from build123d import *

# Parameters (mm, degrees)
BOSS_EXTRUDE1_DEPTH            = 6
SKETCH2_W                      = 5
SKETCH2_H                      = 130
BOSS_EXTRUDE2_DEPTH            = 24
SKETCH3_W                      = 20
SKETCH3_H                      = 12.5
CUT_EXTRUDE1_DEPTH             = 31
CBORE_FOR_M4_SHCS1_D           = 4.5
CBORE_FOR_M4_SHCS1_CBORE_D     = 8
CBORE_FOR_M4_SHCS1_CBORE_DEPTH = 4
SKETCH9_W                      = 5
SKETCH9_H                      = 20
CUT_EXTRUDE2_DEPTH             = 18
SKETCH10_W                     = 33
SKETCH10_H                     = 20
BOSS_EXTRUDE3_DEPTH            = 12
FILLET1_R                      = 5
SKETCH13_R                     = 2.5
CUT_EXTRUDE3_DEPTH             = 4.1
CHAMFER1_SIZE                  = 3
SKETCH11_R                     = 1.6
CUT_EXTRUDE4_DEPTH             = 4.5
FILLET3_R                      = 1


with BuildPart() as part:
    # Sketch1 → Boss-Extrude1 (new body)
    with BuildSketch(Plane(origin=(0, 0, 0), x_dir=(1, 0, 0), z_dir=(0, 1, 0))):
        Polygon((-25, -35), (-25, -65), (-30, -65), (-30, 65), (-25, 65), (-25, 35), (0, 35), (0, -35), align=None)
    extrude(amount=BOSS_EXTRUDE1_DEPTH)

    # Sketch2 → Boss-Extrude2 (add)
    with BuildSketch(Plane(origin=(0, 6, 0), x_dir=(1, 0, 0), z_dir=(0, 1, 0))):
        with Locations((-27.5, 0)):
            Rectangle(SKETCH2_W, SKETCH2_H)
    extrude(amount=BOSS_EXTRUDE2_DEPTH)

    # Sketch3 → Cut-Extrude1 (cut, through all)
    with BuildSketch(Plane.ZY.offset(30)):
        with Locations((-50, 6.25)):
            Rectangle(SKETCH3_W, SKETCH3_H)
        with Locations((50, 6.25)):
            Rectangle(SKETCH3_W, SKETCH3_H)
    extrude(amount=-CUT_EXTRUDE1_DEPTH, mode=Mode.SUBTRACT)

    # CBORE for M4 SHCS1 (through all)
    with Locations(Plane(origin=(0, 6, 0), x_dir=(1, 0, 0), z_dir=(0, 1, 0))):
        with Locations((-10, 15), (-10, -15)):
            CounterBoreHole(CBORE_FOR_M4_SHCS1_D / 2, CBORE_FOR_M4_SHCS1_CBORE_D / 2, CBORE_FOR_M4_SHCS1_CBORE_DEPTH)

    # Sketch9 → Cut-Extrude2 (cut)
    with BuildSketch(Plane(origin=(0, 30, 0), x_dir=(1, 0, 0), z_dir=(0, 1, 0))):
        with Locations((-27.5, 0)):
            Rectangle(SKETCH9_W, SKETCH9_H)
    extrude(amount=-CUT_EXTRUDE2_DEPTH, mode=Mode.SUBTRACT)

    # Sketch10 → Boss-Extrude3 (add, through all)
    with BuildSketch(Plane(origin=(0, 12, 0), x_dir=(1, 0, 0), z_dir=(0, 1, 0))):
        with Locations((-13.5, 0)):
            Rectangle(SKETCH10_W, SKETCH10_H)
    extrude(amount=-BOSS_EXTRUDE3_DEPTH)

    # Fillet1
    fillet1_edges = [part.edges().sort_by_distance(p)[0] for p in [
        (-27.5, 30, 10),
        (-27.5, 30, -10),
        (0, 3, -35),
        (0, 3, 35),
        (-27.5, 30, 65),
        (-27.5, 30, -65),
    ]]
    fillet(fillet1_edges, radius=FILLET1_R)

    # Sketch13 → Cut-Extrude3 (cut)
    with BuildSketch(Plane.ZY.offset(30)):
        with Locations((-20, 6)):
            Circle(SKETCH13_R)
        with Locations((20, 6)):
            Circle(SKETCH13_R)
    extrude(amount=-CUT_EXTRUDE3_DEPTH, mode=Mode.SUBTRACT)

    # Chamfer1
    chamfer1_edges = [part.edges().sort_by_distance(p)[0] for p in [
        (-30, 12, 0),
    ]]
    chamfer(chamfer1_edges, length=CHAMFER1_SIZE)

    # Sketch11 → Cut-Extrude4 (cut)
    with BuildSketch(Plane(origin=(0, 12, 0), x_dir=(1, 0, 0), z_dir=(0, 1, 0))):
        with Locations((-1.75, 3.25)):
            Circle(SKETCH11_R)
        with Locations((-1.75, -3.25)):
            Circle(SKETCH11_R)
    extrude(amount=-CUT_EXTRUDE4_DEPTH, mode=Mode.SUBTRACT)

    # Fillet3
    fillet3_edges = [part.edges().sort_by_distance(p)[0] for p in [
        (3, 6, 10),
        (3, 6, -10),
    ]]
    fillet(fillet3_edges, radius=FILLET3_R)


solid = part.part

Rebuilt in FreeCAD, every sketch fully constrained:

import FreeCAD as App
import Part
import Sketcher
from FreeCAD import Vector


def edges_at(feature, points):
    """Names of the edges that pass closest to the given points."""
    edges = feature.Shape.Edges
    near = lambda p: min(range(len(edges)), key=lambda i: edges[i].distToShape(Part.Vertex(*p))[0])
    return sorted({f"Edge{near(p) + 1}" for p in points})

doc = App.newDocument("Part")
params = doc.addObject("Spreadsheet::Sheet", "Params")
for row, (alias, value) in enumerate([
    ("sketch1_width", "25 mm"),
    ("sketch1_width2", "5 mm"),
    ("sketch1_height", "30 mm"),
    ("sketch1_height2", "70 mm"),
    ("pad1_length", "6 mm"),
    ("sketch2_width", "5 mm"),
    ("sketch2_height", "130 mm"),
    ("pad2_length", "24 mm"),
    ("sketch3_height", "20 mm"),
    ("sketch3_width", "12.5 mm"),
    ("sketch4_diameter", "4.5 mm"),
    ("hole_diameter", "4.5 mm"),
    ("hole_cbore_diameter", "8 mm"),
    ("hole_cbore_depth", "4 mm"),
    ("sketch5_width", "5 mm"),
    ("sketch5_height", "20 mm"),
    ("pocket2_length", "18 mm"),
    ("sketch6_width", "33 mm"),
    ("sketch6_height", "20 mm"),
    ("fillet_radius", "5 mm"),
    ("sketch7_diameter", "5 mm"),
    ("pocket3_length", "4.1 mm"),
    ("chamfer_size", "3 mm"),
    ("sketch8_diameter", "3.2 mm"),
    ("pocket4_length", "4.5 mm"),
    ("fillet2_radius", "1 mm"),
], start=1):
    params.set(f"A{row}", alias)
    params.set(f"B{row}", "=" + value)
    params.setAlias(f"B{row}", alias)

body = doc.addObject("PartDesign::Body", "Body")

sketch1 = body.newObject("Sketcher::SketchObject", "Sketch")
sketch1.AttachmentSupport = (doc.getObject("XZ_Plane"), [""])
sketch1.MapMode = "FlatFace"
sketch1.addGeometry([
    Part.LineSegment(Vector(-25, 65, 0), Vector(-25, 35, 0)),
    Part.LineSegment(Vector(-25, 35, 0), Vector(0, 35, 0)),
    Part.LineSegment(Vector(0, 35, 0), Vector(0, -35, 0)),
    Part.LineSegment(Vector(0, -35, 0), Vector(-25, -35, 0)),
    Part.LineSegment(Vector(-25, -35, 0), Vector(-25, -65, 0)),
    Part.LineSegment(Vector(-25, -65, 0), Vector(-30, -65, 0)),
    Part.LineSegment(Vector(-30, -65, 0), Vector(-30, 65, 0)),
    Part.LineSegment(Vector(-30, 65, 0), Vector(-25, 65, 0)),
], False)
sketch1.addConstraint([
    Sketcher.Constraint("Coincident", 0, 2, 1, 1),
    Sketcher.Constraint("Coincident", 1, 2, 2, 1),
    Sketcher.Constraint("Coincident", 2, 2, 3, 1),
    Sketcher.Constraint("Coincident", 3, 2, 4, 1),
    Sketcher.Constraint("Coincident", 4, 2, 5, 1),
    Sketcher.Constraint("Coincident", 5, 2, 6, 1),
    Sketcher.Constraint("Coincident", 6, 2, 7, 1),
    Sketcher.Constraint("Coincident", 7, 2, 0, 1),
    Sketcher.Constraint("Vertical", 0),
    Sketcher.Constraint("Horizontal", 1),
    Sketcher.Constraint("Vertical", 2),
    Sketcher.Constraint("Horizontal", 3),
    Sketcher.Constraint("Vertical", 4),
    Sketcher.Constraint("Horizontal", 5),
    Sketcher.Constraint("Vertical", 6),
    Sketcher.Constraint("Horizontal", 7),
    Sketcher.Constraint("Symmetric", 1, 2, 2, 2, -1, 1),
    Sketcher.Constraint("Symmetric", 4, 2, 7, 2, -1),
    Sketcher.Constraint("DistanceX", 1, 1, 1, 2, 25.0),
    Sketcher.Constraint("DistanceX", 5, 2, 5, 1, 5.0),
    Sketcher.Constraint("DistanceY", 0, 2, 0, 1, 30.0),
    Sketcher.Constraint("DistanceY", 2, 2, 2, 1, 70.0),
])
sketch1.setExpression("Constraints[18]", "Params.sketch1_width")
sketch1.setExpression("Constraints[19]", "Params.sketch1_width2")
sketch1.setExpression("Constraints[20]", "Params.sketch1_height")
sketch1.setExpression("Constraints[21]", "Params.sketch1_height2")
pad1 = body.newObject("PartDesign::Pad", "Pad")
pad1.Profile = sketch1
pad1.setExpression("Length", "Params.pad1_length")
pad1.Reversed = True

sketch2 = body.newObject("Sketcher::SketchObject", "Sketch001")
sketch2.AttachmentSupport = (doc.getObject("XZ_Plane"), [""])
sketch2.MapMode = "FlatFace"
sketch2.AttachmentOffset = App.Placement(Vector(0, 0, -6), App.Rotation())
sketch2.addGeometry([
    Part.LineSegment(Vector(-30, -65, 0), Vector(-30, 65, 0)),
    Part.LineSegment(Vector(-30, 65, 0), Vector(-25, 65, 0)),
    Part.LineSegment(Vector(-25, 65, 0), Vector(-25, -65, 0)),
    Part.LineSegment(Vector(-25, -65, 0), Vector(-30, -65, 0)),
], False)
sketch2.addConstraint([
    Sketcher.Constraint("Coincident", 0, 2, 1, 1),
    Sketcher.Constraint("Coincident", 1, 2, 2, 1),
    Sketcher.Constraint("Coincident", 2, 2, 3, 1),
    Sketcher.Constraint("Coincident", 3, 2, 0, 1),
    Sketcher.Constraint("Vertical", 0),
    Sketcher.Constraint("Horizontal", 1),
    Sketcher.Constraint("Vertical", 2),
    Sketcher.Constraint("Horizontal", 3),
    Sketcher.Constraint("DistanceX", 1, 1, 1, 2, 5.0),
    Sketcher.Constraint("DistanceY", 0, 1, 0, 2, 130.0),
    Sketcher.Constraint("DistanceX", 0, 2, -1, 1, 30.0),
    Sketcher.Constraint("DistanceY", -1, 1, 0, 2, 65.0),
])
sketch2.setExpression("Constraints[8]", "Params.sketch2_width")
sketch2.setExpression("Constraints[9]", "Params.sketch2_height")
pad2 = body.newObject("PartDesign::Pad", "Pad001")
pad2.Profile = sketch2
pad2.setExpression("Length", "Params.pad2_length")
pad2.Reversed = True

sketch3 = body.newObject("Sketcher::SketchObject", "Sketch002")
sketch3.AttachmentSupport = (doc.getObject("YZ_Plane"), [""])
sketch3.MapMode = "FlatFace"
sketch3.AttachmentOffset = App.Placement(Vector(0, 0, -30), App.Rotation())
sketch3.addGeometry([
    Part.LineSegment(Vector(12.5, -60, 0), Vector(0, -60, 0)),
    Part.LineSegment(Vector(0, -60, 0), Vector(0, -40, 0)),
    Part.LineSegment(Vector(0, -40, 0), Vector(12.5, -40, 0)),
    Part.LineSegment(Vector(12.5, -40, 0), Vector(12.5, -60, 0)),
    Part.LineSegment(Vector(12.5, 40, 0), Vector(0, 40, 0)),
    Part.LineSegment(Vector(0, 40, 0), Vector(0, 60, 0)),
    Part.LineSegment(Vector(0, 60, 0), Vector(12.5, 60, 0)),
    Part.LineSegment(Vector(12.5, 60, 0), Vector(12.5, 40, 0)),
], False)
sketch3.addConstraint([
    Sketcher.Constraint("Coincident", 0, 2, 1, 1),
    Sketcher.Constraint("Coincident", 1, 2, 2, 1),
    Sketcher.Constraint("Coincident", 2, 2, 3, 1),
    Sketcher.Constraint("Coincident", 3, 2, 0, 1),
    Sketcher.Constraint("Coincident", 4, 2, 5, 1),
    Sketcher.Constraint("Coincident", 5, 2, 6, 1),
    Sketcher.Constraint("Coincident", 6, 2, 7, 1),
    Sketcher.Constraint("Coincident", 7, 2, 4, 1),
    Sketcher.Constraint("Horizontal", 0),
    Sketcher.Constraint("Vertical", 1),
    Sketcher.Constraint("Horizontal", 2),
    Sketcher.Constraint("Vertical", 3),
    Sketcher.Constraint("Horizontal", 4),
    Sketcher.Constraint("Vertical", 5),
    Sketcher.Constraint("Horizontal", 6),
    Sketcher.Constraint("Vertical", 7),
    Sketcher.Constraint("Symmetric", 1, 2, 4, 2, -1, 1),
    Sketcher.Constraint("Symmetric", 0, 2, 5, 2, -1),
    Sketcher.Constraint("Vertical", 3, 2, 6, 2),
    Sketcher.Constraint("DistanceY", 1, 1, 1, 2, 20.0),
    Sketcher.Constraint("DistanceX", 0, 2, 0, 1, 12.5),
    Sketcher.Constraint("DistanceY", 0, 2, -1, 1, 60.0),
])
sketch3.setExpression("Constraints[19]", "Params.sketch3_height")
sketch3.setExpression("Constraints[20]", "Params.sketch3_width")
pocket1 = body.newObject("PartDesign::Pocket", "Pocket")
pocket1.Profile = sketch3
pocket1.Type = "ThroughAll"
pocket1.Reversed = True

sketch4 = body.newObject("Sketcher::SketchObject", "Sketch003")
sketch4.AttachmentSupport = (doc.getObject("XZ_Plane"), [""])
sketch4.MapMode = "FlatFace"
sketch4.AttachmentOffset = App.Placement(Vector(0, 0, -6), App.Rotation())
sketch4.addGeometry([
    Part.Circle(Vector(-10, -15, 0), Vector(0, 0, 1), 2.25),
    Part.Circle(Vector(-10, 15, 0), Vector(0, 0, 1), 2.25),
], False)
sketch4.addConstraint([
    Sketcher.Constraint("Equal", 0, 1),
    Sketcher.Constraint("Symmetric", 0, 3, 1, 3, -1),
    Sketcher.Constraint("Diameter", 0, 4.5),
    Sketcher.Constraint("DistanceX", 0, 3, -1, 1, 10.0),
    Sketcher.Constraint("DistanceY", 0, 3, -1, 1, 15.0),
])
sketch4.setExpression("Constraints[2]", "Params.sketch4_diameter")
doc.recompute()
hole = body.newObject("PartDesign::Hole", "Hole")
hole.Profile = sketch4
hole.ThreadType = "None"
hole.setExpression("Diameter", "Params.hole_diameter")
hole.DepthType = "ThroughAll"
hole.HoleCutType = "Counterbore"
hole.setExpression("HoleCutDiameter", "Params.hole_cbore_diameter")
hole.setExpression("HoleCutDepth", "Params.hole_cbore_depth")
hole.Reversed = True

sketch5 = body.newObject("Sketcher::SketchObject", "Sketch004")
sketch5.AttachmentSupport = (doc.getObject("XZ_Plane"), [""])
sketch5.MapMode = "FlatFace"
sketch5.AttachmentOffset = App.Placement(Vector(0, 0, -30), App.Rotation())
sketch5.addGeometry([
    Part.LineSegment(Vector(-30, -10, 0), Vector(-30, 10, 0)),
    Part.LineSegment(Vector(-30, 10, 0), Vector(-25, 10, 0)),
    Part.LineSegment(Vector(-25, 10, 0), Vector(-25, -10, 0)),
    Part.LineSegment(Vector(-25, -10, 0), Vector(-30, -10, 0)),
], False)
sketch5.addConstraint([
    Sketcher.Constraint("Coincident", 0, 2, 1, 1),
    Sketcher.Constraint("Coincident", 1, 2, 2, 1),
    Sketcher.Constraint("Coincident", 2, 2, 3, 1),
    Sketcher.Constraint("Coincident", 3, 2, 0, 1),
    Sketcher.Constraint("Vertical", 0),
    Sketcher.Constraint("Horizontal", 1),
    Sketcher.Constraint("Vertical", 2),
    Sketcher.Constraint("Horizontal", 3),
    Sketcher.Constraint("DistanceX", 1, 1, 1, 2, 5.0),
    Sketcher.Constraint("DistanceY", 0, 1, 0, 2, 20.0),
    Sketcher.Constraint("DistanceX", 0, 2, -1, 1, 30.0),
    Sketcher.Constraint("DistanceY", -1, 1, 0, 2, 10.0),
])
sketch5.setExpression("Constraints[8]", "Params.sketch5_width")
sketch5.setExpression("Constraints[9]", "Params.sketch5_height")
pocket2 = body.newObject("PartDesign::Pocket", "Pocket001")
pocket2.Profile = sketch5
pocket2.setExpression("Length", "Params.pocket2_length")
pocket2.Reversed = True

sketch6 = body.newObject("Sketcher::SketchObject", "Sketch005")
sketch6.AttachmentSupport = (doc.getObject("XZ_Plane"), [""])
sketch6.MapMode = "FlatFace"
sketch6.AttachmentOffset = App.Placement(Vector(0, 0, -12), App.Rotation())
sketch6.addGeometry([
    Part.LineSegment(Vector(-30, -10, 0), Vector(-30, 10, 0)),
    Part.LineSegment(Vector(-30, 10, 0), Vector(3, 10, 0)),
    Part.LineSegment(Vector(3, 10, 0), Vector(3, -10, 0)),
    Part.LineSegment(Vector(3, -10, 0), Vector(-30, -10, 0)),
], False)
sketch6.addConstraint([
    Sketcher.Constraint("Coincident", 0, 2, 1, 1),
    Sketcher.Constraint("Coincident", 1, 2, 2, 1),
    Sketcher.Constraint("Coincident", 2, 2, 3, 1),
    Sketcher.Constraint("Coincident", 3, 2, 0, 1),
    Sketcher.Constraint("Vertical", 0),
    Sketcher.Constraint("Horizontal", 1),
    Sketcher.Constraint("Vertical", 2),
    Sketcher.Constraint("Horizontal", 3),
    Sketcher.Constraint("DistanceX", 1, 1, 1, 2, 33.0),
    Sketcher.Constraint("DistanceY", 0, 1, 0, 2, 20.0),
    Sketcher.Constraint("DistanceX", 0, 2, -1, 1, 30.0),
    Sketcher.Constraint("DistanceY", -1, 1, 0, 2, 10.0),
])
sketch6.setExpression("Constraints[8]", "Params.sketch6_width")
sketch6.setExpression("Constraints[9]", "Params.sketch6_height")
pad3 = body.newObject("PartDesign::Pad", "Pad002")
pad3.Profile = sketch6
pad3.Type = "UpToLast"
doc.recompute()

fillet = body.newObject("PartDesign::Fillet", "Fillet")
fillet.Base = (pad3, edges_at(pad3, [
    (-27.5, 30, 10),
    (-27.5, 30, -10),
    (0, 3, -35),
    (0, 3, 35),
    (-27.5, 30, 65),
    (-27.5, 30, -65),
]))
fillet.setExpression("Radius", "Params.fillet_radius")

sketch7 = body.newObject("Sketcher::SketchObject", "Sketch006")
sketch7.AttachmentSupport = (doc.getObject("YZ_Plane"), [""])
sketch7.MapMode = "FlatFace"
sketch7.AttachmentOffset = App.Placement(Vector(0, 0, -30), App.Rotation())
sketch7.addGeometry([
    Part.Circle(Vector(6, -20, 0), Vector(0, 0, 1), 2.5),
    Part.Circle(Vector(6, 20, 0), Vector(0, 0, 1), 2.5),
], False)
sketch7.addConstraint([
    Sketcher.Constraint("Equal", 0, 1),
    Sketcher.Constraint("Symmetric", 0, 3, 1, 3, -1),
    Sketcher.Constraint("Diameter", 0, 5.0),
    Sketcher.Constraint("DistanceX", -1, 1, 0, 3, 6.0),
    Sketcher.Constraint("DistanceY", 0, 3, -1, 1, 20.0),
])
sketch7.setExpression("Constraints[2]", "Params.sketch7_diameter")
pocket3 = body.newObject("PartDesign::Pocket", "Pocket002")
pocket3.Profile = sketch7
pocket3.setExpression("Length", "Params.pocket3_length")
pocket3.Reversed = True
doc.recompute()

chamfer = body.newObject("PartDesign::Chamfer", "Chamfer")
chamfer.Base = (pocket3, edges_at(pocket3, [(-30, 12, 0)]))
chamfer.setExpression("Size", "Params.chamfer_size")

sketch8 = body.newObject("Sketcher::SketchObject", "Sketch007")
sketch8.AttachmentSupport = (doc.getObject("XZ_Plane"), [""])
sketch8.MapMode = "FlatFace"
sketch8.AttachmentOffset = App.Placement(Vector(0, 0, -12), App.Rotation())
sketch8.addGeometry([
    Part.Circle(Vector(-1.75, -3.25, 0), Vector(0, 0, 1), 1.6),
    Part.Circle(Vector(-1.75, 3.25, 0), Vector(0, 0, 1), 1.6),
], False)
sketch8.addConstraint([
    Sketcher.Constraint("Equal", 0, 1),
    Sketcher.Constraint("Symmetric", 0, 3, 1, 3, -1),
    Sketcher.Constraint("Diameter", 0, 3.2),
    Sketcher.Constraint("DistanceY", 0, 3, 1, 3, 6.5),
    Sketcher.Constraint("DistanceX", 0, 3, -1, 1, 1.75),
])
sketch8.setExpression("Constraints[2]", "Params.sketch8_diameter")
pocket4 = body.newObject("PartDesign::Pocket", "Pocket003")
pocket4.Profile = sketch8
pocket4.setExpression("Length", "Params.pocket4_length")
pocket4.Reversed = True
doc.recompute()

fillet2 = body.newObject("PartDesign::Fillet", "Fillet001")
fillet2.Base = (pocket4, edges_at(pocket4, [(3, 6, 10), (3, 6, -10)]))
fillet2.setExpression("Radius", "Params.fillet2_radius")

doc.recompute()
